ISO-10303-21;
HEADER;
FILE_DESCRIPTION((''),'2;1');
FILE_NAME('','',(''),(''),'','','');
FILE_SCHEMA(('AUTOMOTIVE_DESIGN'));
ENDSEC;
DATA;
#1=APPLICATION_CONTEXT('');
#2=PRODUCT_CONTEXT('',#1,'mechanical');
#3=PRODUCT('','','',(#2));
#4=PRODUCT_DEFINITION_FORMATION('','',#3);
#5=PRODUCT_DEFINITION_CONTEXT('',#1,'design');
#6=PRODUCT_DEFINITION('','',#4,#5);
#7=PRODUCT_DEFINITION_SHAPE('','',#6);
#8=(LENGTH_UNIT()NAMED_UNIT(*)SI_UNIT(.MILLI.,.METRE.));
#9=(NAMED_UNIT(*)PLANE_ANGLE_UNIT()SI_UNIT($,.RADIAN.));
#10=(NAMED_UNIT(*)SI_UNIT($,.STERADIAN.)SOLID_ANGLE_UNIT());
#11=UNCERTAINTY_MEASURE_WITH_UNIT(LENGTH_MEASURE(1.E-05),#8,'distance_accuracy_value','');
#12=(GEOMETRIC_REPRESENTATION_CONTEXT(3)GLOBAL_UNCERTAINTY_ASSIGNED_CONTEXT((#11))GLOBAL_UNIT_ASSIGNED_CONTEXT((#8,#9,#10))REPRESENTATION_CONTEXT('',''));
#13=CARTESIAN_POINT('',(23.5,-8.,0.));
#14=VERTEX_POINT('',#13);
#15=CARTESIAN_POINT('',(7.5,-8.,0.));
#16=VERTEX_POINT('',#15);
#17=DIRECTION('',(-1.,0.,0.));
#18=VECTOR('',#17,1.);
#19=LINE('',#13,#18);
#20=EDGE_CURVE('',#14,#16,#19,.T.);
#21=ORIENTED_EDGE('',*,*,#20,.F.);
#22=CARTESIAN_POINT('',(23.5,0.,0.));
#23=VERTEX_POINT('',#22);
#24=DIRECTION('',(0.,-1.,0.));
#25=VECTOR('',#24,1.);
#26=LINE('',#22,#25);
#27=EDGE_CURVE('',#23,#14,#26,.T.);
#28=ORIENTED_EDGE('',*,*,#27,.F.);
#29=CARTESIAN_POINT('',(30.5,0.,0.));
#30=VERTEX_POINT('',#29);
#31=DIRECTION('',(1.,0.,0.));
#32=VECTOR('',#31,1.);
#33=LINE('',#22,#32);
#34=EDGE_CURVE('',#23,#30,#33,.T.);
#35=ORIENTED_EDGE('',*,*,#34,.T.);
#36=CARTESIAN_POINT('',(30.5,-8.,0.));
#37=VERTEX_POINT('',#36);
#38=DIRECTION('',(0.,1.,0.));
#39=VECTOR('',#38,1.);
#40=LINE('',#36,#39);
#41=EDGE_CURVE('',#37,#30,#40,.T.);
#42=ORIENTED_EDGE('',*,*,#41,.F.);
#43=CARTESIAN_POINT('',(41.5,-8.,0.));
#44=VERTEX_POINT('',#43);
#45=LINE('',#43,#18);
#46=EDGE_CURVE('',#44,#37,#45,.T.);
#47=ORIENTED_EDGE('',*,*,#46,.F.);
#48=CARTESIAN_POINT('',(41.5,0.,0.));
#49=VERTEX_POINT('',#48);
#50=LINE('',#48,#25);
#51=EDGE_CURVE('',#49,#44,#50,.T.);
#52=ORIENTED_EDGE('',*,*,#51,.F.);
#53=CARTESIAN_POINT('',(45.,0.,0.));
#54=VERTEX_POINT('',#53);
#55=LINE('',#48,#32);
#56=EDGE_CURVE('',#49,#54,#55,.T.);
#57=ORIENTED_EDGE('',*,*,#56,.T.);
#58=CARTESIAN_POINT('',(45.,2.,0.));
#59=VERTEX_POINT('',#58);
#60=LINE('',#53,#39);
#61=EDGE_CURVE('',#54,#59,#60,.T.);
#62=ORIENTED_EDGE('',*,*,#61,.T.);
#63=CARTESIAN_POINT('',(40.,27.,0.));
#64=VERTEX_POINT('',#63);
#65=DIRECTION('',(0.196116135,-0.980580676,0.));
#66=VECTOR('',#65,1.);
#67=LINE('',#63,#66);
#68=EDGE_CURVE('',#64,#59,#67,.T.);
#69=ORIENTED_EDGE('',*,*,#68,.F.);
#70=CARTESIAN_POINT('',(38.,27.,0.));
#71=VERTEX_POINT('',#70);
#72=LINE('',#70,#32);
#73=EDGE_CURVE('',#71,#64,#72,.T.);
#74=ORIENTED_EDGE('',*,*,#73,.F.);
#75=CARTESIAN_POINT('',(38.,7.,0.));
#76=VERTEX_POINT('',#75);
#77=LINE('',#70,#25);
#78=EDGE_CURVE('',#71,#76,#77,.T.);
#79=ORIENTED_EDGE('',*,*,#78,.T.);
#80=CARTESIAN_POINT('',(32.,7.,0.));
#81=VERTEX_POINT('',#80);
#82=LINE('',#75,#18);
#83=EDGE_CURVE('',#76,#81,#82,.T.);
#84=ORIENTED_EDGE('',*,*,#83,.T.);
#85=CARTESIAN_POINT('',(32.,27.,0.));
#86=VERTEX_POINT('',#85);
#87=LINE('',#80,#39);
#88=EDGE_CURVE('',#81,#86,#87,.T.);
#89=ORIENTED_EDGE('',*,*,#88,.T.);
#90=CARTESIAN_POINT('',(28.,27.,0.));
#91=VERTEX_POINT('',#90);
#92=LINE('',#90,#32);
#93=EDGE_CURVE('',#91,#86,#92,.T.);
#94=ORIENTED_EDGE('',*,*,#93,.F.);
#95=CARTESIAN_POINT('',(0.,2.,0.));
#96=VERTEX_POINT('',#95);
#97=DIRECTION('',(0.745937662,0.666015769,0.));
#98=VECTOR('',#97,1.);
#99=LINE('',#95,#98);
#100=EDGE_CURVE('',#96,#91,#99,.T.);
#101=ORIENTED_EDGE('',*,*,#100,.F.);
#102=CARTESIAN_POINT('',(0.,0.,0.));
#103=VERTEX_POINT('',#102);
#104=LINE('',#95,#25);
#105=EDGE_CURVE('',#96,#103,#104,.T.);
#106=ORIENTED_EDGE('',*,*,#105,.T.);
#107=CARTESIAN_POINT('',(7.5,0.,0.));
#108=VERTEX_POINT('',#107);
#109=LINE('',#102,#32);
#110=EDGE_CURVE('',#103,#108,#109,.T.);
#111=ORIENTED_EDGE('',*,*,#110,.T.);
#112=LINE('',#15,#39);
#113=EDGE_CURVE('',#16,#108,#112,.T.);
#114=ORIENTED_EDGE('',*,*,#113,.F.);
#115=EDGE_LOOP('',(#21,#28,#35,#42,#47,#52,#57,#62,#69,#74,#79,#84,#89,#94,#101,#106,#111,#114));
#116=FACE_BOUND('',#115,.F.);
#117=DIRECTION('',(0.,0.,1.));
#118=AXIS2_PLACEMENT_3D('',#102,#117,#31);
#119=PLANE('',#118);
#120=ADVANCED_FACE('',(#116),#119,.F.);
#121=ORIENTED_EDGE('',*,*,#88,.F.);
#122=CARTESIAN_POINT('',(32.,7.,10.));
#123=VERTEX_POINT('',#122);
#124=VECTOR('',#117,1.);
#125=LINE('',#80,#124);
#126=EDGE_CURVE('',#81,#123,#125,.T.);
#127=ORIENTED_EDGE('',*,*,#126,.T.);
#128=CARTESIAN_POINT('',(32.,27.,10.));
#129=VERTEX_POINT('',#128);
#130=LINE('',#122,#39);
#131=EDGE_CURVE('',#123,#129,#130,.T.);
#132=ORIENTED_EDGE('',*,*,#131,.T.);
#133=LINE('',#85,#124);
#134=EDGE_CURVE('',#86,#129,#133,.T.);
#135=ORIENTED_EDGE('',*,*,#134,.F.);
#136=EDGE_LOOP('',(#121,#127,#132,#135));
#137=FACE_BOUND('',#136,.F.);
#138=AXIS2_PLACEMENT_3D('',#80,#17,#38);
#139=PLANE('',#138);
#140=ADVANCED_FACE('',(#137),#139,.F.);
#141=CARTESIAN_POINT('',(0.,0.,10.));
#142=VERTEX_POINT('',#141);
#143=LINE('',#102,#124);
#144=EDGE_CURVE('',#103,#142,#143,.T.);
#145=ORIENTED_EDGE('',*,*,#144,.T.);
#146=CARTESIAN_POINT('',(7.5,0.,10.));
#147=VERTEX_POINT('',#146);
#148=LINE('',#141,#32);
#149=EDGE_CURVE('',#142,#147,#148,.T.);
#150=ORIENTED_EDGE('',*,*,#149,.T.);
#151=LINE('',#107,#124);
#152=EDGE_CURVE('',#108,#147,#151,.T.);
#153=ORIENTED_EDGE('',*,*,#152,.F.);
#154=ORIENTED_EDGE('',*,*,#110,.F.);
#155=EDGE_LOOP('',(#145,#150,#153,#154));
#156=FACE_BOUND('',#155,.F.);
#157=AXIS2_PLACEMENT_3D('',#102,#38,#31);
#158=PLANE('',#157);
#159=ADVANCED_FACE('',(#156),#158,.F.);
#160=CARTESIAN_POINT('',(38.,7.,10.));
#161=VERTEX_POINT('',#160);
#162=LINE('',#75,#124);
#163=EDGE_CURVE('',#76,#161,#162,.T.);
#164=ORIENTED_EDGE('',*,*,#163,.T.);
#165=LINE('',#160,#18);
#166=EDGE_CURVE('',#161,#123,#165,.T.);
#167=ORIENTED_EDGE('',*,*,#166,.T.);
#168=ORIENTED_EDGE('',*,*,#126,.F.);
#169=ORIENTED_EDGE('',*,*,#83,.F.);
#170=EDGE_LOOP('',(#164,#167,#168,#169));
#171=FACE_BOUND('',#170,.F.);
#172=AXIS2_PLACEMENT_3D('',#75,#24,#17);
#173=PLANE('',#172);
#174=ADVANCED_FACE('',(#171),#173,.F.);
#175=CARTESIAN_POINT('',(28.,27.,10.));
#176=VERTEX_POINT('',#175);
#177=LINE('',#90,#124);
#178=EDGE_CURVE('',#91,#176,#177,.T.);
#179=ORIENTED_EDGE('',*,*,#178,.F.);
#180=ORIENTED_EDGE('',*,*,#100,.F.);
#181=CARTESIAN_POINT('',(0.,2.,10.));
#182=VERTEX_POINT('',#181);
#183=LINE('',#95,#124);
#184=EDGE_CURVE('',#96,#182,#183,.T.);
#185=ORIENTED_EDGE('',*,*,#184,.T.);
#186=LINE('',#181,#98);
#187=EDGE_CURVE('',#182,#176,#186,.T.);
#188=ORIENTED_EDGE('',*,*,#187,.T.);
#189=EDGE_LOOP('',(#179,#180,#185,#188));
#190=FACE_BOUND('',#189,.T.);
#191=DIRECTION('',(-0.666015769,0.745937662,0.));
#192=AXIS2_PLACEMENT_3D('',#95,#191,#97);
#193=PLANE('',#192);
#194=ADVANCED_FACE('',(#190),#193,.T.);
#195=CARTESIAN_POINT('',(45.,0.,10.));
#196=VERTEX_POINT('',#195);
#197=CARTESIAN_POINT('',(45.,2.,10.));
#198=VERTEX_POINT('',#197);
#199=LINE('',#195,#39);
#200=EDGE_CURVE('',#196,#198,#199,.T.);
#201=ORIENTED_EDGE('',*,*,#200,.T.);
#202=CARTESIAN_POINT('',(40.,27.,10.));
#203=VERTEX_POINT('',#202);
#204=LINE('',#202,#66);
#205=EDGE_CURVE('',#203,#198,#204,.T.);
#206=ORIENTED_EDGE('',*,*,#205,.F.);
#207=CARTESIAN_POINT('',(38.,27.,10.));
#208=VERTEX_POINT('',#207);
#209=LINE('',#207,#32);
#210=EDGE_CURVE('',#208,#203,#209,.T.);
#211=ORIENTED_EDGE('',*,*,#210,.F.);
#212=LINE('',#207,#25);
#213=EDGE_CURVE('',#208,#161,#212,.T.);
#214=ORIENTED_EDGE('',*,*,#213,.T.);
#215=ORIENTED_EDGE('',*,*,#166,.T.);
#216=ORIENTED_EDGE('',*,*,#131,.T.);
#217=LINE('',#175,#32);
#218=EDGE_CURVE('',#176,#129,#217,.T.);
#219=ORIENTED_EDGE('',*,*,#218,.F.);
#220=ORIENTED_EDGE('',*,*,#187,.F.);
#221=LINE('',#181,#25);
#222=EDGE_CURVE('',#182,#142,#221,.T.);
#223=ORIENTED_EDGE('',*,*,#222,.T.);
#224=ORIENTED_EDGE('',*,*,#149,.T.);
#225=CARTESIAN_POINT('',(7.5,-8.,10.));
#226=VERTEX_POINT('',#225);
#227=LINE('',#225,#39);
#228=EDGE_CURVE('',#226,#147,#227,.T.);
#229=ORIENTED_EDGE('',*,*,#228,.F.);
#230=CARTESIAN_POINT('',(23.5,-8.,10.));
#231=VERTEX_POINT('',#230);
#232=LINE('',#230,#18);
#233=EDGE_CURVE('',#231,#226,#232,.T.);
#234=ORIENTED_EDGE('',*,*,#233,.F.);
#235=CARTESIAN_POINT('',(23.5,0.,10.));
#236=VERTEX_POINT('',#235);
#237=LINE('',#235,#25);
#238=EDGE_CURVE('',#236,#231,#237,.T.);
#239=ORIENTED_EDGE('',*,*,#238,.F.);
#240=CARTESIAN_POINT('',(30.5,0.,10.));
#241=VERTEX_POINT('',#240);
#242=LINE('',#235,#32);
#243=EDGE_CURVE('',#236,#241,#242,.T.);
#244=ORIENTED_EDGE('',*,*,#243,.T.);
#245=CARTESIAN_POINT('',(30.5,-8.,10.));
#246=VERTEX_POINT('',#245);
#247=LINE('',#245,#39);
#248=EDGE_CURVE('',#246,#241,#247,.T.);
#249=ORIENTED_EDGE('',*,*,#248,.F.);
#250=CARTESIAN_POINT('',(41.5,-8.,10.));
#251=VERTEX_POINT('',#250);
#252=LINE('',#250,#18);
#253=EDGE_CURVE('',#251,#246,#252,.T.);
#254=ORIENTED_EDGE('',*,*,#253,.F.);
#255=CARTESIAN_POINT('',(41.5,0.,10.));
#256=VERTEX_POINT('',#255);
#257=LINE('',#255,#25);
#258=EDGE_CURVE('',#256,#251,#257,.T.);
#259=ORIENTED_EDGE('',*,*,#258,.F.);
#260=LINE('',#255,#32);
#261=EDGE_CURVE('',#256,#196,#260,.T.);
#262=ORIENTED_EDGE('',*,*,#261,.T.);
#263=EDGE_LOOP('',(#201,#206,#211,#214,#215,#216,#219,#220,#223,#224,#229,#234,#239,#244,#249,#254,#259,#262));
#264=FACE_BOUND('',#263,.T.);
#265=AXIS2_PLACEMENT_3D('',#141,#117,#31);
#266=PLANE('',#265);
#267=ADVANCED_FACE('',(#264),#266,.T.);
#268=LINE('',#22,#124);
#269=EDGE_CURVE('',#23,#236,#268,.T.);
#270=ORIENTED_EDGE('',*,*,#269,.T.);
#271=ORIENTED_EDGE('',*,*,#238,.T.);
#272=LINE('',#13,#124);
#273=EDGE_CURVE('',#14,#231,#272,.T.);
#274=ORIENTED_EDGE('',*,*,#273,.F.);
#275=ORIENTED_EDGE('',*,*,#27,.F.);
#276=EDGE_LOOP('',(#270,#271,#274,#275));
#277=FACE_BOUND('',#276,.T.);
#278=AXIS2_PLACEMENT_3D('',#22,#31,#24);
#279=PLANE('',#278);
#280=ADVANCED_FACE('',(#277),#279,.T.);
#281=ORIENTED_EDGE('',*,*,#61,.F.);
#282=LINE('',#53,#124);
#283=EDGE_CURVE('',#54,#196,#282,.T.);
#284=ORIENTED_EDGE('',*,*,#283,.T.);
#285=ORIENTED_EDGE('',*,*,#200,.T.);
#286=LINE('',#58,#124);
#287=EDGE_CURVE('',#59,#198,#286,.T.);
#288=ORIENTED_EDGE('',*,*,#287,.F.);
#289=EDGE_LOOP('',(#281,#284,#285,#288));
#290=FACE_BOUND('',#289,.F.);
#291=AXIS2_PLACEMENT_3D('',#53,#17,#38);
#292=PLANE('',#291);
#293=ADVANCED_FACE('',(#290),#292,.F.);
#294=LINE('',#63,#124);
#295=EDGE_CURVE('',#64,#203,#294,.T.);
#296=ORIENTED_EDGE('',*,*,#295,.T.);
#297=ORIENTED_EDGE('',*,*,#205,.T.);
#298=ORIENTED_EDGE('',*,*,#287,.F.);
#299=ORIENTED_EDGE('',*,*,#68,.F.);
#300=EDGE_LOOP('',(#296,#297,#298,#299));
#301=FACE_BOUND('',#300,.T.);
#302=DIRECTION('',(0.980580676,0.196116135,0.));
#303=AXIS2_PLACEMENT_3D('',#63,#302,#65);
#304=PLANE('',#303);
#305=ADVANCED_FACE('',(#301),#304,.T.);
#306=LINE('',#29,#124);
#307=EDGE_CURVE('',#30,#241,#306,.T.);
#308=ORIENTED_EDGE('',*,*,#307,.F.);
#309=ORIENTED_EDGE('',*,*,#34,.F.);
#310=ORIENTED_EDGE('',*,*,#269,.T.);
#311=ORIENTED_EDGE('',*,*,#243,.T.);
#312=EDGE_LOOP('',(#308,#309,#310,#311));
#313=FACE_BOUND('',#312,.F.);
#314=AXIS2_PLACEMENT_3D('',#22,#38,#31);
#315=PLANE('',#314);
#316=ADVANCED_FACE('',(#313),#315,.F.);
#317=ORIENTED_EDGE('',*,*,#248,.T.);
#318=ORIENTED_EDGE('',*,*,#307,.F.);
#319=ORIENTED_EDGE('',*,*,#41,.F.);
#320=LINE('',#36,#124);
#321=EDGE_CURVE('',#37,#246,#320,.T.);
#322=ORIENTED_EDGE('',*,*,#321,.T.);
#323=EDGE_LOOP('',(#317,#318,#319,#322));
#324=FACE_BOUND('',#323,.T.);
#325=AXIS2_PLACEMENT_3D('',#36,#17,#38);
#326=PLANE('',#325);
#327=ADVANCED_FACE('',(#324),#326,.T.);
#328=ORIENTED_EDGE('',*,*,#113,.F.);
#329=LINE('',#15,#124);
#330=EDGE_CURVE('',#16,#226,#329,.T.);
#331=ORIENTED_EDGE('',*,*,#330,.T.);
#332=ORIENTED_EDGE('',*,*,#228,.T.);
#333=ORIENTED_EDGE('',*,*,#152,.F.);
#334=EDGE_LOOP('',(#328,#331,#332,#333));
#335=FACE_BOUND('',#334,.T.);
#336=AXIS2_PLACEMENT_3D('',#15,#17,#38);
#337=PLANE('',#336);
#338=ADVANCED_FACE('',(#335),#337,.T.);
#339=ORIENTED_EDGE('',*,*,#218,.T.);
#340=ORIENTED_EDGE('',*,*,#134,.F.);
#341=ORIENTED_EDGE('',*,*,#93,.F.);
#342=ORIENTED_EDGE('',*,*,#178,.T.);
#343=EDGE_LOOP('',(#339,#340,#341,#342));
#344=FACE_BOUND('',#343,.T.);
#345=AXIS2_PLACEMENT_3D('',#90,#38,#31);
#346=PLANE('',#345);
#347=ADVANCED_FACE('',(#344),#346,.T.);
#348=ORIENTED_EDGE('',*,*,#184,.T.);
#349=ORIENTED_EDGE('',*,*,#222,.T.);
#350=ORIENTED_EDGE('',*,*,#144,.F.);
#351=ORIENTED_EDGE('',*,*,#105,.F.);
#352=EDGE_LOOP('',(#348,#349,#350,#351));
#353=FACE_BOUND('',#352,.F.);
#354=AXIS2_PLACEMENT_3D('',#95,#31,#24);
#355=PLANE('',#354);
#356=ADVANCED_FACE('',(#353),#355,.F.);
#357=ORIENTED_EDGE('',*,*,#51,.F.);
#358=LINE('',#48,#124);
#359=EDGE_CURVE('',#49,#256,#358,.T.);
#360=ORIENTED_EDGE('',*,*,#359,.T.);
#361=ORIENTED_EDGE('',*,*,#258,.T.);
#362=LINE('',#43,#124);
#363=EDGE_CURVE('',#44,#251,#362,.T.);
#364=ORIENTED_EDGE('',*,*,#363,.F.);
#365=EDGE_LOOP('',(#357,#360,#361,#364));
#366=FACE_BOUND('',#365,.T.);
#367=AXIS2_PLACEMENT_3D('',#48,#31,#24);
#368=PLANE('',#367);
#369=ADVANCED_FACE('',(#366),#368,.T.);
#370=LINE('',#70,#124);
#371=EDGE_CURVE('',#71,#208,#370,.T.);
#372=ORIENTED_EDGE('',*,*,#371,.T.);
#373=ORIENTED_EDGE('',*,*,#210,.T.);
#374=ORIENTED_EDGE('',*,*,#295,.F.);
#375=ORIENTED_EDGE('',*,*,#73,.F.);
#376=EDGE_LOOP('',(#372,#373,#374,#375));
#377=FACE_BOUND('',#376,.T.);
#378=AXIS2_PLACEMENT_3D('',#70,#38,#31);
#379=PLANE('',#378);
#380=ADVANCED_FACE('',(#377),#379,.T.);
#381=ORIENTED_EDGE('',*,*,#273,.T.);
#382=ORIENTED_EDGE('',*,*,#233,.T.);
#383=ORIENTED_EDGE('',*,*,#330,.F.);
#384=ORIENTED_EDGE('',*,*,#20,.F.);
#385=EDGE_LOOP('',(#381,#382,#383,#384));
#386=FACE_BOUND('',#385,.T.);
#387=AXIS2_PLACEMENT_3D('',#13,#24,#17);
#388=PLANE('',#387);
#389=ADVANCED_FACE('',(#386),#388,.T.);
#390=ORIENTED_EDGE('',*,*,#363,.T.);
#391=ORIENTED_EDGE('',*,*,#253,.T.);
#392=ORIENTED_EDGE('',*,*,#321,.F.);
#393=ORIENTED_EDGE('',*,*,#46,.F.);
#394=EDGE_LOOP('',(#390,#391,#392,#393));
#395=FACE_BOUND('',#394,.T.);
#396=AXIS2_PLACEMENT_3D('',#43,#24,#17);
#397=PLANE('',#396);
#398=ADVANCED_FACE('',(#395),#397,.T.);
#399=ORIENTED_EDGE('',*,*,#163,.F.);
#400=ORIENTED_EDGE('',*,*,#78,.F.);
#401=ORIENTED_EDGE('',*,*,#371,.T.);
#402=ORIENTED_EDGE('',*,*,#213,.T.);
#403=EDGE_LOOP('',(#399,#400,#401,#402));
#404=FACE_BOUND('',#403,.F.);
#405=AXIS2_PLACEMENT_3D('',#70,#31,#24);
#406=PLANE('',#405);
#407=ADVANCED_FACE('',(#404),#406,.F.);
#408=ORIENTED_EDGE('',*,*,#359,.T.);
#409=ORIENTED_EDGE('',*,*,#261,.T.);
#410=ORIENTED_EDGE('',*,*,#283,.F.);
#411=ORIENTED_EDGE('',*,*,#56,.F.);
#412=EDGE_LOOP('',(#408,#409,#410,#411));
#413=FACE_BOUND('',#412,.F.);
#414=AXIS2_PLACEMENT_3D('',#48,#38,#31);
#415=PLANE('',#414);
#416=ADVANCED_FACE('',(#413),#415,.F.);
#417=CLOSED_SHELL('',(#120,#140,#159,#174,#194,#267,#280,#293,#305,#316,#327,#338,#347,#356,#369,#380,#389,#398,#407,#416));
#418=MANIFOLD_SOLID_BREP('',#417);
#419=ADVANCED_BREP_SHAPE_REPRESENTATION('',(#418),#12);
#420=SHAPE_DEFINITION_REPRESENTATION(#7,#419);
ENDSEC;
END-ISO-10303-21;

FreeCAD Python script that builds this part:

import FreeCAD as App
import Part
import Sketcher


def add_polygon(sketch, points):
    """Adds a closed chain of lines whose ends are joined by coincident constraints."""
    first, n = sketch.GeometryCount, len(points)
    for a, b in zip(points, points[1:] + points[:1]):
        sketch.addGeometry(Part.LineSegment(App.Vector(*a, 0), App.Vector(*b, 0)), False)
    for i in range(n):
        sketch.addConstraint(Sketcher.Constraint("Coincident", first + i, 2, first + (i + 1) % n, 1))

doc = App.newDocument("Part")
body = doc.addObject("PartDesign::Body", "Body")

# Sketch on XY plane
sketch1 = doc.addObject("Sketcher::SketchObject", "Sketch")
body.addObject(sketch1)
sketch1.AttachmentSupport = (doc.XY_Plane, [""])
sketch1.MapMode = "FlatFace"
add_polygon(sketch1, [(41.5, 0), (45, 0), (45, 2), (40, 27), (38, 27), (38, 7), (32, 7), (32, 27), (28, 27), (0, 2), (0, 0), (7.5, 0), (7.5, -8), (23.5, -8), (23.5, 0), (30.5, 0), (30.5, -8), (41.5, -8)])  # lines 0-17
sketch1.addConstraint([
    Sketcher.Constraint("Horizontal", 0),
    Sketcher.Constraint("Vertical", 1),
    Sketcher.Constraint("Horizontal", 3),
    Sketcher.Constraint("Vertical", 4),
    Sketcher.Constraint("Horizontal", 5),
    Sketcher.Constraint("Vertical", 6),
    Sketcher.Constraint("Horizontal", 7),
    Sketcher.Constraint("Vertical", 9),
    Sketcher.Constraint("Horizontal", 10),
    Sketcher.Constraint("Vertical", 11),
    Sketcher.Constraint("Horizontal", 12),
    Sketcher.Constraint("Vertical", 13),
    Sketcher.Constraint("Horizontal", 14),
    Sketcher.Constraint("Vertical", 15),
    Sketcher.Constraint("Horizontal", 16),
    Sketcher.Constraint("Vertical", 17),
    Sketcher.Constraint("Coincident", 9, 2, -1, 1),
    Sketcher.Constraint("PointOnObject", 0, 2, -1),
    Sketcher.Constraint("PointOnObject", 13, 2, -1),
    Sketcher.Constraint("Horizontal", 3, 2, 6, 2),
    Sketcher.Constraint("Horizontal", 1, 2, 8, 2),
    Sketcher.Constraint("Horizontal", 12, 2, 15, 2),
    Sketcher.Constraint("Equal", 3, 1),
    Sketcher.Constraint("DistanceX", 5, 2, 5, 1, 6.0),
    Sketcher.Constraint("DistanceX", 12, 1, 12, 2, 16.0),
    Sketcher.Constraint("DistanceX", 14, 1, 14, 2, 7.0),
    Sketcher.Constraint("DistanceX", 16, 1, 16, 2, 11.0),
    Sketcher.Constraint("DistanceY", 4, 2, 4, 1, 20.0),
    Sketcher.Constraint("DistanceY", 11, 2, 11, 1, 8.0),
    Sketcher.Constraint("DistanceX", 0, 1, 0, 2, 3.5),
    Sketcher.Constraint("DistanceX", 10, 1, 10, 2, 7.5),
    Sketcher.Constraint("DistanceY", -1, 1, 4, 2, 7.0),
    Sketcher.Constraint("DistanceY", 1, 2, 2, 2, 25.0),
    Sketcher.Constraint("DistanceX", 3, 2, 1, 2, 7.0),
    Sketcher.Constraint("DistanceX", 7, 2, 7, 1, 4.0),
])
pad1 = doc.addObject("PartDesign::Pad", "Pad")
body.addObject(pad1)
pad1.Profile = sketch1
pad1.Length = 10

doc.recompute()
